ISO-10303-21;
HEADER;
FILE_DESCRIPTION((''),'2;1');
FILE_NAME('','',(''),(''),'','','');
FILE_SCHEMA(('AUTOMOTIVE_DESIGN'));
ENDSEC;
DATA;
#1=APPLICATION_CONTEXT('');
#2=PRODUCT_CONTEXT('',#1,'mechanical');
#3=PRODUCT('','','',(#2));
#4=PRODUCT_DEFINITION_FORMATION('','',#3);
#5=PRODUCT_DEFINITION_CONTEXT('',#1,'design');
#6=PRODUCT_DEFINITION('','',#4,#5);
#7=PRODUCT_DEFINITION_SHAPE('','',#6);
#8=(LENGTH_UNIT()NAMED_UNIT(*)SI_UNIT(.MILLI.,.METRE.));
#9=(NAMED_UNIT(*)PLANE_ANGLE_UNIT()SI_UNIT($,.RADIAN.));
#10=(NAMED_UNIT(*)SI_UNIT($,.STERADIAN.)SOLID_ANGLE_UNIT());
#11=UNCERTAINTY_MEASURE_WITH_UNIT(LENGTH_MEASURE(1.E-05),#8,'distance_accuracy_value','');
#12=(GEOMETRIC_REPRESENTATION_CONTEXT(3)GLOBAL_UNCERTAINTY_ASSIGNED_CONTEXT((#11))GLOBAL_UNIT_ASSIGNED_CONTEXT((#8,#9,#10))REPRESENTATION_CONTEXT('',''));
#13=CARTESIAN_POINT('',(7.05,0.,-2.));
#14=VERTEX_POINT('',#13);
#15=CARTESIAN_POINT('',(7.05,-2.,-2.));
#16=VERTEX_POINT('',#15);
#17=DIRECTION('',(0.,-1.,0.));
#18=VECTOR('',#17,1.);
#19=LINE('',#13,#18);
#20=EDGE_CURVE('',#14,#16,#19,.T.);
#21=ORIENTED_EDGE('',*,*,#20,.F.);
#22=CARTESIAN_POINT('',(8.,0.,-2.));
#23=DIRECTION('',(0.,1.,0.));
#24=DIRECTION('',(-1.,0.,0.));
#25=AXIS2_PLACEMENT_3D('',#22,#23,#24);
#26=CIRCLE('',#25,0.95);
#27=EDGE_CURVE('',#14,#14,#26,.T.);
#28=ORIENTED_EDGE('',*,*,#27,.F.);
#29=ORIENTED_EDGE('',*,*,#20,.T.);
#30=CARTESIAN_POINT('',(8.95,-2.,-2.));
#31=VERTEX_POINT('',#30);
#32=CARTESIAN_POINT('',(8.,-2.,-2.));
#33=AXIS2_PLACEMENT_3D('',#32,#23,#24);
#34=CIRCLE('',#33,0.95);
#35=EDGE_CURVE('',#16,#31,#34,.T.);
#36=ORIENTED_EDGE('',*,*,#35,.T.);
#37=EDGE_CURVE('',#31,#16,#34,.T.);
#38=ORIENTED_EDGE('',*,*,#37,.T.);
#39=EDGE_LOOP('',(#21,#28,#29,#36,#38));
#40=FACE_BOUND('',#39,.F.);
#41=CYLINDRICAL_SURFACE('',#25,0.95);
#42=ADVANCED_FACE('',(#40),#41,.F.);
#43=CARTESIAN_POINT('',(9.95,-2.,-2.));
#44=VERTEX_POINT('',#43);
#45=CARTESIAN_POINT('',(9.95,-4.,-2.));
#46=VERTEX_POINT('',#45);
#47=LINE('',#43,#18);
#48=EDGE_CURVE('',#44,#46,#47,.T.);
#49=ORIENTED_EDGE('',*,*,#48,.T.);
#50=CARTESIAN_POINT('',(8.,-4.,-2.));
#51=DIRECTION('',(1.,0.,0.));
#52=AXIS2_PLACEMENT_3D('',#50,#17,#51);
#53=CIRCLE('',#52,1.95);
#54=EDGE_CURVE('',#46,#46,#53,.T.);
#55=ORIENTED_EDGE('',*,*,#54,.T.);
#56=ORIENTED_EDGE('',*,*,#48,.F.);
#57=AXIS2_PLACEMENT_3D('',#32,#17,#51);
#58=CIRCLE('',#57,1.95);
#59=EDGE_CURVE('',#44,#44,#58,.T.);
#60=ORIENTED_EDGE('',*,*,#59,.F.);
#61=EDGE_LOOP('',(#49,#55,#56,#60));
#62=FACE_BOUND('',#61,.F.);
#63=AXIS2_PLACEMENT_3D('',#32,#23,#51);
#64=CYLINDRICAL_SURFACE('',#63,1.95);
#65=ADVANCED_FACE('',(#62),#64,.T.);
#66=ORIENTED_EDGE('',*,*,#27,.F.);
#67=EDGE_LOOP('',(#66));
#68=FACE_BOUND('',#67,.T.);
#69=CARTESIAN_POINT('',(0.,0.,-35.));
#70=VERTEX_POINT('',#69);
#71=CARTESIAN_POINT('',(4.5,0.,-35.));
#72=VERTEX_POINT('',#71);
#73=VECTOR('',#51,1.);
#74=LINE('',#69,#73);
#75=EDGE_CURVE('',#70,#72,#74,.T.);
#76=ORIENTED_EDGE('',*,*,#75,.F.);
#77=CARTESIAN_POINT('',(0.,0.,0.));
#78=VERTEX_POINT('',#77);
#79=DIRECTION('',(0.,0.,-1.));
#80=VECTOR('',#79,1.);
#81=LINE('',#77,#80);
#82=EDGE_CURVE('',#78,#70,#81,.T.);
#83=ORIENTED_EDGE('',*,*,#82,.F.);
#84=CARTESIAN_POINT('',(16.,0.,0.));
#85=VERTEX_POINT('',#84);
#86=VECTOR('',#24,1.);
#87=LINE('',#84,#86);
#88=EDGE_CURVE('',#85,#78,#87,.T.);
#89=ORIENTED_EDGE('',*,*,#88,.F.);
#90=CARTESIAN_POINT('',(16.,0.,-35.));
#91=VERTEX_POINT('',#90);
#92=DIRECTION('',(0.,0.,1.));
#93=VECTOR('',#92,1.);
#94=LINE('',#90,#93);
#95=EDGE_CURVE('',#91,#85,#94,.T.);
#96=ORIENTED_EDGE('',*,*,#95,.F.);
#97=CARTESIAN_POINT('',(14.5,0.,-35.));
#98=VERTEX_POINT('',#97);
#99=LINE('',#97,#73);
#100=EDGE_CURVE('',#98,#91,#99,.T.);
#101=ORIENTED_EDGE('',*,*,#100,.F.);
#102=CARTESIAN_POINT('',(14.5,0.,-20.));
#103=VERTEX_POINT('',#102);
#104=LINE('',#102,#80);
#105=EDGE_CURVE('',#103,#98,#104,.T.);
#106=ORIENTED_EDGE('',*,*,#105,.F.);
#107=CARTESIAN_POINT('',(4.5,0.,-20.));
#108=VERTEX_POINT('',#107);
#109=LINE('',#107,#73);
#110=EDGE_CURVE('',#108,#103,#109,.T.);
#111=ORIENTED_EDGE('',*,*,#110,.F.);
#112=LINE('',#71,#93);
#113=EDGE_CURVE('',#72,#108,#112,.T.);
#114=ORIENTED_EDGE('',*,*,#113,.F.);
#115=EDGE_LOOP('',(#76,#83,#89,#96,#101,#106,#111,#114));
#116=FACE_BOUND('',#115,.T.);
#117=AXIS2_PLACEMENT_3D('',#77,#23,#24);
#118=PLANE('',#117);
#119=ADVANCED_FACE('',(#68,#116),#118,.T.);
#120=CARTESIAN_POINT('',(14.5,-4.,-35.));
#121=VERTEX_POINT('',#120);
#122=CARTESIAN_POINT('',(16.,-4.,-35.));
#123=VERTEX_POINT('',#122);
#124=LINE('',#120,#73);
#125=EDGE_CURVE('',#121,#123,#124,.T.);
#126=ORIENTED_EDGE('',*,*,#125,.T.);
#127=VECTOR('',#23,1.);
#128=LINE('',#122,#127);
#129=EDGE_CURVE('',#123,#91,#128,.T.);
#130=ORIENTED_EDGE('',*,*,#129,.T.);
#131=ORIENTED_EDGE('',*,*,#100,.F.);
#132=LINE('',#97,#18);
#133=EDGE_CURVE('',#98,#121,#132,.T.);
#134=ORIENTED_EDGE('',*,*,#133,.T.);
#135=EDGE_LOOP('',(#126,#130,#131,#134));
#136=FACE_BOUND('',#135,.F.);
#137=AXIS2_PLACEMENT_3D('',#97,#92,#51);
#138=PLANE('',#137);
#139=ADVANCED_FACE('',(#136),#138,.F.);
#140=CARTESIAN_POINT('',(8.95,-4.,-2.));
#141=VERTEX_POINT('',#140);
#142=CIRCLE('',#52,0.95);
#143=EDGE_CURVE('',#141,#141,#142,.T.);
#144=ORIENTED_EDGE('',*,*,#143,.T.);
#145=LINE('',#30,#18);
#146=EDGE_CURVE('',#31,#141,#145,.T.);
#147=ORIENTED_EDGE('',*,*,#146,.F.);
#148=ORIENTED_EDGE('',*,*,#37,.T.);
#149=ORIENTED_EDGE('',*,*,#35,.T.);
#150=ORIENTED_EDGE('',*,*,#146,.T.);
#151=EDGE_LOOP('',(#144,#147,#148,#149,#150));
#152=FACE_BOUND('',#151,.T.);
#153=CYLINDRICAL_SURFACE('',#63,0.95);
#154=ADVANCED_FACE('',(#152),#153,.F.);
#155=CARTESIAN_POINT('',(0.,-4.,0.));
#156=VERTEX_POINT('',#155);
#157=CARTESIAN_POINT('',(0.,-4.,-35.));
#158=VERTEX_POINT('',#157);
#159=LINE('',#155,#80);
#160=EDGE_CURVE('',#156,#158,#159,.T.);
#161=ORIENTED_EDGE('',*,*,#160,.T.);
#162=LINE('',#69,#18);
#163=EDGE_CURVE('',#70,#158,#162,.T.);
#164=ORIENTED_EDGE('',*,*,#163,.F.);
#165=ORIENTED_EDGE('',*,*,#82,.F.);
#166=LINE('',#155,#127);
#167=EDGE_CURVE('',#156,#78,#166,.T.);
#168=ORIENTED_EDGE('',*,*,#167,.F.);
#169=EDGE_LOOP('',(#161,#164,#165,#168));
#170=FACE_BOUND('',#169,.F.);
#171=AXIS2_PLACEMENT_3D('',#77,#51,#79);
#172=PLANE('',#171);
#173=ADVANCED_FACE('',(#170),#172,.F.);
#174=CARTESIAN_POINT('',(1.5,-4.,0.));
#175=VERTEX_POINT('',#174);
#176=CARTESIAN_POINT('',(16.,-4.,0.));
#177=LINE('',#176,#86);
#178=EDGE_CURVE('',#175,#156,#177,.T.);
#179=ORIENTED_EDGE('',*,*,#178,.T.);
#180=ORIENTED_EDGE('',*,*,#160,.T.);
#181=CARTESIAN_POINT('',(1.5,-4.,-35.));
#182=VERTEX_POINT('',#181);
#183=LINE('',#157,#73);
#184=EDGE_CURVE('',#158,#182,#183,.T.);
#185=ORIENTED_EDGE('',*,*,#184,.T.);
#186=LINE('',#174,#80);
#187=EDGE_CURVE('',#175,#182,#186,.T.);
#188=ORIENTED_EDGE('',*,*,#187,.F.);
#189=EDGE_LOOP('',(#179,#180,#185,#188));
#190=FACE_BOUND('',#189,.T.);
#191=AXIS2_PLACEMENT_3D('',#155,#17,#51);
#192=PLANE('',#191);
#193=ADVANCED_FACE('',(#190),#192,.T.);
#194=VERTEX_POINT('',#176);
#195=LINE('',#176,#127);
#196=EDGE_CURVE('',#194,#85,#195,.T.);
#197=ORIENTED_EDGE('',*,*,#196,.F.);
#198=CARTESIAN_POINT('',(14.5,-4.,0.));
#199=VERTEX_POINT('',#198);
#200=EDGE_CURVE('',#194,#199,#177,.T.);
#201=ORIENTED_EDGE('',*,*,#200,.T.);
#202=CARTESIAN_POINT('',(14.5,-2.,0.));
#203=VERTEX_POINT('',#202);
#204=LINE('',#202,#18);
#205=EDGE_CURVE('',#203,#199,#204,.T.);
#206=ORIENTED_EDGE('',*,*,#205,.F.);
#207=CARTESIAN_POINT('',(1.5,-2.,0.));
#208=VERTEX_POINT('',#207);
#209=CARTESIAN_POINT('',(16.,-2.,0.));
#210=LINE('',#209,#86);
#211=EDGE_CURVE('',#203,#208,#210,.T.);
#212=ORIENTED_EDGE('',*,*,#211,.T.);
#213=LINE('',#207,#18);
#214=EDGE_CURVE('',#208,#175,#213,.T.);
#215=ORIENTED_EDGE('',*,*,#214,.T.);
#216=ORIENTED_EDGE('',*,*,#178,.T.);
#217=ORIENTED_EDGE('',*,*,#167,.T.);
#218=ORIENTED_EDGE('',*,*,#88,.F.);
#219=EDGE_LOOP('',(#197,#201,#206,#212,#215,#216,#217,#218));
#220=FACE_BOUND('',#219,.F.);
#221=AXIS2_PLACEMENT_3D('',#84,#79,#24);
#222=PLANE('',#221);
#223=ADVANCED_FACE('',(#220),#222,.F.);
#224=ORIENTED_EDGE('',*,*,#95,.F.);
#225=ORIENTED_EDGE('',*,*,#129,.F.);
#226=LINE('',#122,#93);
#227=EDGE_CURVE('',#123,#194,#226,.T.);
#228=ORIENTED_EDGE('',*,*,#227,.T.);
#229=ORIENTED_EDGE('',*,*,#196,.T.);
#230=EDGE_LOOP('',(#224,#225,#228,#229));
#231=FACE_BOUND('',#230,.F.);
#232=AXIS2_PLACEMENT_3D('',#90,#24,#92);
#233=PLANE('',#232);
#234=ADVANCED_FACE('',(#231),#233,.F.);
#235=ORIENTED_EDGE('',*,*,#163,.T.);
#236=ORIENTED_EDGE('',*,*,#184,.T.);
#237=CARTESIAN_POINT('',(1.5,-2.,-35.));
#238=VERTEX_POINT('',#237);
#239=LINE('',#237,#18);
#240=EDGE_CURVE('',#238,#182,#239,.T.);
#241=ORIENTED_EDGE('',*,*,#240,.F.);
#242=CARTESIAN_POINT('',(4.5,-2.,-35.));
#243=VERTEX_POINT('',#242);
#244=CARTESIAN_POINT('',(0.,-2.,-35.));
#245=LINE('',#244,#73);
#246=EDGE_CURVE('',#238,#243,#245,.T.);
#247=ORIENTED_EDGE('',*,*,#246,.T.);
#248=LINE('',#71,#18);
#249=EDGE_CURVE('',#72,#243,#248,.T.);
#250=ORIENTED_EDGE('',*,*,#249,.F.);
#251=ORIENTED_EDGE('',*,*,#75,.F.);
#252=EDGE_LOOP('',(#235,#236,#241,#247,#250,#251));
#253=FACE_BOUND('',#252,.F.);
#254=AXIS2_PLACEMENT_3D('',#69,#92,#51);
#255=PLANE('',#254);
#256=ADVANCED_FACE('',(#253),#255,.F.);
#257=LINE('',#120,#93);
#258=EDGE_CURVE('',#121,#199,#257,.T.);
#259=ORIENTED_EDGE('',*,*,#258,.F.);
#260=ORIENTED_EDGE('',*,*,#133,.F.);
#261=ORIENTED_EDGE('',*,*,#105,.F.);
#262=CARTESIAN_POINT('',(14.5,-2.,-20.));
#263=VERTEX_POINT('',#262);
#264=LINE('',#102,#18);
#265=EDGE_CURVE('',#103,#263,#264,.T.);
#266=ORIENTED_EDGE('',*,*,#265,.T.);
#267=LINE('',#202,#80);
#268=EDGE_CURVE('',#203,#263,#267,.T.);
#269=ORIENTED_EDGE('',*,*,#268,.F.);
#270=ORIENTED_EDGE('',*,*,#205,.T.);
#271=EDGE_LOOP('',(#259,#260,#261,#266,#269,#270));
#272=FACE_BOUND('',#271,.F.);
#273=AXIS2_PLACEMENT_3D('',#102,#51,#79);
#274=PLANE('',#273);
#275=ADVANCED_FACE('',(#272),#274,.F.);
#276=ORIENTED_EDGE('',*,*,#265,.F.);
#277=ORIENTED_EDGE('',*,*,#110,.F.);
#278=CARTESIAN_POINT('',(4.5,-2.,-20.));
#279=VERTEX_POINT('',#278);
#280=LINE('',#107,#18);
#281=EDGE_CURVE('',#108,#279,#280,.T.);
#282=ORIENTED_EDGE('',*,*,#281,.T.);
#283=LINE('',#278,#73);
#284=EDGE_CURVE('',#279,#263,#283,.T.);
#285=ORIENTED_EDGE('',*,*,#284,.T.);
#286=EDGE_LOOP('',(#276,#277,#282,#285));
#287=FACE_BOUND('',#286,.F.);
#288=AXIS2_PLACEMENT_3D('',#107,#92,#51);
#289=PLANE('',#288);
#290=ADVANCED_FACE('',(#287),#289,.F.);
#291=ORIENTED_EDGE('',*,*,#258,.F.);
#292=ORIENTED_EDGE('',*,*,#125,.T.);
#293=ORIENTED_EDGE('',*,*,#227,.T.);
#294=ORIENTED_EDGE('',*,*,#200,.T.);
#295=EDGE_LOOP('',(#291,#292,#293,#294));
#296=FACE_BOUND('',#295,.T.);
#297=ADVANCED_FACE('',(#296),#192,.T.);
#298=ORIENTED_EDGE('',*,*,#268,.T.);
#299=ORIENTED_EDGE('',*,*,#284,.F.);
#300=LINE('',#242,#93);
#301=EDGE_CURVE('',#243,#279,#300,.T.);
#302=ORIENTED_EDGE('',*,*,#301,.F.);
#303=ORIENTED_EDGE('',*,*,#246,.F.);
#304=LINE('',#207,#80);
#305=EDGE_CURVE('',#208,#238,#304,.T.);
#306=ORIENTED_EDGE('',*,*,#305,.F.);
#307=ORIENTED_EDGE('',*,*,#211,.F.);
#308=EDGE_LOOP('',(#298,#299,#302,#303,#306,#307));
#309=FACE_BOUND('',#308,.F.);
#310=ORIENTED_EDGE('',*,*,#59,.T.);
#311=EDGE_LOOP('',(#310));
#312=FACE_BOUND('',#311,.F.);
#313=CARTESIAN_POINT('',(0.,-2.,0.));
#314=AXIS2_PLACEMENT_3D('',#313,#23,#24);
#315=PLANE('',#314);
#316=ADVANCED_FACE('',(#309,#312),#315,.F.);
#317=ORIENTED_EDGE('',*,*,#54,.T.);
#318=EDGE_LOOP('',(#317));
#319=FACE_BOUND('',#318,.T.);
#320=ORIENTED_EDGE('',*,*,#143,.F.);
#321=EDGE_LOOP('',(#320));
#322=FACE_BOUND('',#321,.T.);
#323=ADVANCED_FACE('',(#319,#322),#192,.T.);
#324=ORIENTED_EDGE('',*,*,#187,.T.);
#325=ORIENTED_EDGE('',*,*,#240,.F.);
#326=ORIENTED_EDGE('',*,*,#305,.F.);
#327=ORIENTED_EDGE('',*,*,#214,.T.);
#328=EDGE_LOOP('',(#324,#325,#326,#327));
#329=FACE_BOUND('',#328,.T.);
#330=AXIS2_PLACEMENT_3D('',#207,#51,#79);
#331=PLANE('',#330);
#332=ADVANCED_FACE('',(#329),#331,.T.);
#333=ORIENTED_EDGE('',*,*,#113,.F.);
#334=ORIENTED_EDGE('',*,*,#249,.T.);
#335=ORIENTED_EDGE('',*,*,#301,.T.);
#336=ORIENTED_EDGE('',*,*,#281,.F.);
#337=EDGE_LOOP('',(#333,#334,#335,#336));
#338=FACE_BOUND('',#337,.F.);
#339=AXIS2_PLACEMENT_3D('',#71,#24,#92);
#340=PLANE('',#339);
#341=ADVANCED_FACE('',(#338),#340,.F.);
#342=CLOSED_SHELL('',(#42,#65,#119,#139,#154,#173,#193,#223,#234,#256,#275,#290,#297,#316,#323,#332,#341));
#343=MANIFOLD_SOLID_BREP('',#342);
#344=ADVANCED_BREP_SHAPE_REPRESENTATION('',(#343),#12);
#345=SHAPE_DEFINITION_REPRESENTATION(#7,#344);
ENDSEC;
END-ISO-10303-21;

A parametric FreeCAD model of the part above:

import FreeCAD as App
import Part
import Sketcher


def add_polygon(sketch, points):
    """Adds a closed chain of lines whose ends are joined by coincident constraints."""
    first, n = sketch.GeometryCount, len(points)
    for a, b in zip(points, points[1:] + points[:1]):
        sketch.addGeometry(Part.LineSegment(App.Vector(*a, 0), App.Vector(*b, 0)), False)
    for i in range(n):
        sketch.addConstraint(Sketcher.Constraint("Coincident", first + i, 2, first + (i + 1) % n, 1))

doc = App.newDocument("Part")
body = doc.addObject("PartDesign::Body", "Body")

# Sketch on XZ plane
sketch1 = body.newObject("Sketcher::SketchObject", "Sketch")
sketch1.AttachmentSupport = (doc.getObject("XZ_Plane"), [""])
sketch1.MapMode = "FlatFace"
add_polygon(sketch1, [(0, -35), (0, 0), (16, 0), (16, -35), (14.5, -35), (14.5, -20), (4.5, -20), (4.5, -35)])  # lines 0-7
sketch1.addGeometry(Part.Circle(App.Vector(8, -2, 0), App.Vector(0, 0, 1), 0.9), False)  # 8
sketch1.addConstraint(Sketcher.Constraint("Vertical", 0))
sketch1.addConstraint(Sketcher.Constraint("Horizontal", 1))
sketch1.addConstraint(Sketcher.Constraint("Vertical", 2))
sketch1.addConstraint(Sketcher.Constraint("Horizontal", 3))
sketch1.addConstraint(Sketcher.Constraint("Vertical", 4))
sketch1.addConstraint(Sketcher.Constraint("Horizontal", 5))
sketch1.addConstraint(Sketcher.Constraint("Vertical", 6))
sketch1.addConstraint(Sketcher.Constraint("Horizontal", 7))
sketch1.addConstraint(Sketcher.Constraint("Coincident", 0, 2, -1, 1))
sketch1.addConstraint(Sketcher.Constraint("Horizontal", 3, 2, 6, 2))
sketch1.addConstraint(Sketcher.Constraint("Diameter", 8, 1.9))
sketch1.addConstraint(Sketcher.Constraint("DistanceX", 1, 1, 1, 2, 16.0))
sketch1.addConstraint(Sketcher.Constraint("DistanceX", 5, 2, 5, 1, 10.0))
sketch1.addConstraint(Sketcher.Constraint("DistanceY", 4, 1, 4, 2, 15.0))
sketch1.addConstraint(Sketcher.Constraint("DistanceX", 7, 2, 7, 1, 4.5))
sketch1.addConstraint(Sketcher.Constraint("DistanceY", 8, 3, -1, 1, 2.0))
sketch1.addConstraint(Sketcher.Constraint("DistanceY", 2, 2, 8, 3, 33.0))
sketch1.addConstraint(Sketcher.Constraint("DistanceX", -1, 1, 8, 3, 8.0))
pad1 = body.newObject("PartDesign::Pad", "Pad")
pad1.Profile = sketch1
pad1.Length = 2

# Sketch on XZ plane
sketch2 = body.newObject("Sketcher::SketchObject", "Sketch001")
sketch2.AttachmentSupport = (doc.getObject("XZ_Plane"), [""])
sketch2.MapMode = "FlatFace"
sketch2.AttachmentOffset = App.Placement(App.Vector(0, 0, 2), App.Rotation())
add_polygon(sketch2, [(14.5, -35), (16, -35), (16, 0), (14.5, 0)])  # lines 0-3
add_polygon(sketch2, [(1.5, -35), (1.5, 0), (0, 0), (0, -35)])  # lines 4-7
sketch2.addGeometry(Part.Circle(App.Vector(8, -2, 0), App.Vector(0, 0, 1), 1.9), False)  # 8
sketch2.addGeometry(Part.Circle(App.Vector(8, -2, 0), App.Vector(0, 0, 1), 0.9), False)  # 9
sketch2.addConstraint(Sketcher.Constraint("Horizontal", 0))
sketch2.addConstraint(Sketcher.Constraint("Vertical", 1))
sketch2.addConstraint(Sketcher.Constraint("Horizontal", 2))
sketch2.addConstraint(Sketcher.Constraint("Vertical", 3))
sketch2.addConstraint(Sketcher.Constraint("Vertical", 4))
sketch2.addConstraint(Sketcher.Constraint("Horizontal", 5))
sketch2.addConstraint(Sketcher.Constraint("Vertical", 6))
sketch2.addConstraint(Sketcher.Constraint("Horizontal", 7))
sketch2.addConstraint(Sketcher.Constraint("Coincident", 5, 2, -1, 1))
sketch2.addConstraint(Sketcher.Constraint("Coincident", 9, 3, 8, 3))
sketch2.addConstraint(Sketcher.Constraint("PointOnObject", 1, 2, -1))
sketch2.addConstraint(Sketcher.Constraint("Horizontal", 3, 2, 6, 2))
sketch2.addConstraint(Sketcher.Constraint("Equal", 2, 5))
sketch2.addConstraint(Sketcher.Constraint("DistanceX", 0, 1, 0, 2, 1.5))
sketch2.addConstraint(Sketcher.Constraint("Diameter", 8, 3.9))
sketch2.addConstraint(Sketcher.Constraint("Diameter", 9, 1.9))
sketch2.addConstraint(Sketcher.Constraint("DistanceY", 1, 1, 1, 2, 35.0))
sketch2.addConstraint(Sketcher.Constraint("DistanceX", -1, 1, 8, 3, 8.0))
sketch2.addConstraint(Sketcher.Constraint("DistanceY", 8, 3, -1, 1, 2.0))
sketch2.addConstraint(Sketcher.Constraint("DistanceX", -1, 1, 0, 2, 16.0))
pad2 = body.newObject("PartDesign::Pad", "Pad001")
pad2.Profile = sketch2
pad2.Length = 2

doc.recompute()
